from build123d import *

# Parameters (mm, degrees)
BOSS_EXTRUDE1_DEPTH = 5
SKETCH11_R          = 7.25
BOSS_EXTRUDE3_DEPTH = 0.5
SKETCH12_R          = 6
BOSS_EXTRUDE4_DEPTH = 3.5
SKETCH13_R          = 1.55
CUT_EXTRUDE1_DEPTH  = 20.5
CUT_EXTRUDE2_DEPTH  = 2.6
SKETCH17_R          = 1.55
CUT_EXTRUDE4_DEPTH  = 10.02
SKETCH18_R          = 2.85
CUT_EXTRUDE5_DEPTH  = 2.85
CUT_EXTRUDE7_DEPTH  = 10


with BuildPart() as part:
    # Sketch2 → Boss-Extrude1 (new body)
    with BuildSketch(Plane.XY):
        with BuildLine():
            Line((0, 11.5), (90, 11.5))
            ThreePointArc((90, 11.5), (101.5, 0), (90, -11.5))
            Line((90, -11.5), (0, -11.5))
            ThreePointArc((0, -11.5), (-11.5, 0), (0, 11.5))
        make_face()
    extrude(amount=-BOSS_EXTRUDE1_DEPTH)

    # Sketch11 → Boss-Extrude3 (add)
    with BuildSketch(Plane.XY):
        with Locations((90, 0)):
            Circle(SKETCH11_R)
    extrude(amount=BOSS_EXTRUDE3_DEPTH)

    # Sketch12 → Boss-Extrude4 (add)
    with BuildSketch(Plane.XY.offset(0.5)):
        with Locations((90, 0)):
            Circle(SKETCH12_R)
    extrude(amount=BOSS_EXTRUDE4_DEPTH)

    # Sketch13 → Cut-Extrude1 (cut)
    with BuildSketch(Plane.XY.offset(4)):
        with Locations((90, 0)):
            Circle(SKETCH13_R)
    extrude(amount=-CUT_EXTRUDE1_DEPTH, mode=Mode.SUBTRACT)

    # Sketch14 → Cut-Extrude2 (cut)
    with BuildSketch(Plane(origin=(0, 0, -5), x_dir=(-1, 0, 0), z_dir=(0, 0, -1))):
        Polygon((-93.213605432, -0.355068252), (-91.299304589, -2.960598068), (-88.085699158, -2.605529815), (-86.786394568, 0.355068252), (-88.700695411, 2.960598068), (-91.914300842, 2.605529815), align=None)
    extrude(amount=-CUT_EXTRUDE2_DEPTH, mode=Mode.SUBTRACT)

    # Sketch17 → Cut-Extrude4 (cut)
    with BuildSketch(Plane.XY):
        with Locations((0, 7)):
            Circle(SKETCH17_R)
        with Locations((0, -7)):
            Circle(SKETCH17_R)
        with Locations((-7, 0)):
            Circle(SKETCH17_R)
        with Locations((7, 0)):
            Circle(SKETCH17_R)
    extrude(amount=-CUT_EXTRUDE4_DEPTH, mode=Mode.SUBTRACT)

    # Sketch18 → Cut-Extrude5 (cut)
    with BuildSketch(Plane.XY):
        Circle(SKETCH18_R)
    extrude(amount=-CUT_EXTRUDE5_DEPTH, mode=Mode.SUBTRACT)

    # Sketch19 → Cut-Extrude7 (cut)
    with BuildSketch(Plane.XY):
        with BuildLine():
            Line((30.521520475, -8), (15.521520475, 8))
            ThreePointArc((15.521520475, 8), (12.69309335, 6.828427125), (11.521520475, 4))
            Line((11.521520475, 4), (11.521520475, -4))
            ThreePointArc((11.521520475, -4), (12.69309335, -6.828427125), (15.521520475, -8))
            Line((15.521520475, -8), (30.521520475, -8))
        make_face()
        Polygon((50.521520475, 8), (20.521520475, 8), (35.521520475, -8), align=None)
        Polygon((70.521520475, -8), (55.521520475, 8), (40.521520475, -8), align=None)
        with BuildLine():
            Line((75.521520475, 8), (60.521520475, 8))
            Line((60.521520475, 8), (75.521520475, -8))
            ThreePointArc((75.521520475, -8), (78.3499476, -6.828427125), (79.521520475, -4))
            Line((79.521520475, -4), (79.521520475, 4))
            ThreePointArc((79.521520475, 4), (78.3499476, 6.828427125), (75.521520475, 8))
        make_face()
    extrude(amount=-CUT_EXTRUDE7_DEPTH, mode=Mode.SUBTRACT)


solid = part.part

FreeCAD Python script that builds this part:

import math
import FreeCAD as App
import Part
import Sketcher
from FreeCAD import Vector
Q = App.Units.Quantity


def add_polygon(sketch, points):
    """Adds a closed chain of lines whose ends are joined by coincident constraints."""
    first, n = sketch.GeometryCount, len(points)
    for a, b in zip(points, points[1:] + points[:1]):
        sketch.addGeometry(Part.LineSegment(App.Vector(*a, 0), App.Vector(*b, 0)), False)
    for i in range(n):
        sketch.addConstraint(Sketcher.Constraint("Coincident", first + i, 2, first + (i + 1) % n, 1))

doc = App.newDocument("Part")
body = doc.addObject("PartDesign::Body", "Body")

# Sketch on XY plane
sketch1 = body.newObject("Sketcher::SketchObject", "Sketch")
sketch1.AttachmentSupport = (doc.getObject("XY_Plane"), [""])
sketch1.MapMode = "FlatFace"
sketch1.addGeometry([
    Part.LineSegment(Vector(90, 12, 0), Vector(0, 12, 0)),
    Part.ArcOfCircle(Part.Circle(Vector(0, 0, 0), Vector(0, 0, 1), 12), math.radians(90), math.radians(270)),
    Part.LineSegment(Vector(0, -12, 0), Vector(90, -12, 0)),
    Part.ArcOfCircle(Part.Circle(Vector(90, 0, 0), Vector(0, 0, 1), 12), math.radians(-90), math.radians(90)),
], False)
sketch1.addConstraint([
    Sketcher.Constraint("Tangent", 0, 2, 1, 1),
    Sketcher.Constraint("Tangent", 1, 2, 2, 1),
    Sketcher.Constraint("Tangent", 2, 2, 3, 1),
    Sketcher.Constraint("Tangent", 3, 2, 0, 1),
    Sketcher.Constraint("Horizontal", 0),
    Sketcher.Constraint("Horizontal", 2),
    Sketcher.Constraint("Coincident", 1, 3, -1, 1),
    Sketcher.Constraint("Radius", 1, Q("11.5 mm")),
    Sketcher.Constraint("DistanceX", 0, 2, 0, 1, Q("90 mm")),
])
pad1 = body.newObject("PartDesign::Pad", "Pad")
pad1.Profile = sketch1
pad1.Length = 5
pad1.Reversed = True

# Sketch on XY plane
sketch2 = body.newObject("Sketcher::SketchObject", "Sketch001")
sketch2.AttachmentSupport = (doc.getObject("XY_Plane"), [""])
sketch2.MapMode = "FlatFace"
sketch2.addGeometry(Part.Circle(Vector(90, 0, 0), Vector(0, 0, 1), 7), False)
sketch2.addConstraint([
    Sketcher.Constraint("PointOnObject", 0, 3, -1),
    Sketcher.Constraint("Diameter", 0, Q("14.5 mm")),
    Sketcher.Constraint("DistanceX", -1, 1, 0, 3, Q("90 mm")),
])
pad2 = body.newObject("PartDesign::Pad", "Pad001")
pad2.Profile = sketch2
pad2.Length = 0.5

# Sketch on XY plane
sketch3 = body.newObject("Sketcher::SketchObject", "Sketch002")
sketch3.AttachmentSupport = (doc.getObject("XY_Plane"), [""])
sketch3.MapMode = "FlatFace"
sketch3.AttachmentOffset = App.Placement(Vector(0, 0, 0.5), App.Rotation())
sketch3.addGeometry(Part.Circle(Vector(90, 0, 0), Vector(0, 0, 1), 6), False)
sketch3.addConstraint([
    Sketcher.Constraint("PointOnObject", 0, 3, -1),
    Sketcher.Constraint("Diameter", 0, Q("12 mm")),
    Sketcher.Constraint("DistanceX", -1, 1, 0, 3, Q("90 mm")),
])
pad3 = body.newObject("PartDesign::Pad", "Pad002")
pad3.Profile = sketch3
pad3.Length = 3.5

# Sketch on XY plane
sketch4 = body.newObject("Sketcher::SketchObject", "Sketch003")
sketch4.AttachmentSupport = (doc.getObject("XY_Plane"), [""])
sketch4.MapMode = "FlatFace"
sketch4.AttachmentOffset = App.Placement(Vector(0, 0, 4), App.Rotation())
sketch4.addGeometry(Part.Circle(Vector(90, 0, 0), Vector(0, 0, 1), 1.6), False)
sketch4.addConstraint([
    Sketcher.Constraint("PointOnObject", 0, 3, -1),
    Sketcher.Constraint("Diameter", 0, Q("3.1 mm")),
    Sketcher.Constraint("DistanceX", -1, 1, 0, 3, Q("90 mm")),
])
pocket1 = body.newObject("PartDesign::Pocket", "Pocket")
pocket1.Profile = sketch4
pocket1.Length = 20.5

# Sketch on XY plane
sketch5 = body.newObject("Sketcher::SketchObject", "Sketch004")
sketch5.AttachmentSupport = (doc.getObject("XY_Plane"), [""])
sketch5.MapMode = "FlatFace"
sketch5.AttachmentOffset = App.Placement(Vector(0, 0, -5), App.Rotation())
add_polygon(sketch5, [(93.2, -0.4), (91.3, -3), (88.1, -2.6), (86.8, 0.4), (88.7, 3), (91.9, 2.6)])  # lines 0-5
sketch5.addConstraint([
    Sketcher.Constraint("Parallel", 0, 3),
    Sketcher.Constraint("Parallel", 1, 4),
    Sketcher.Constraint("Parallel", 2, 5),
    Sketcher.Constraint("Equal", 0, 1),
    Sketcher.Constraint("Equal", 1, 2),
    Sketcher.Constraint("Equal", 2, 3),
    Sketcher.Constraint("DistanceY", 0, 2, -1, 1, Q("2.960598 mm")),
    Sketcher.Constraint("DistanceX", -1, 1, 1, 2, Q("88.085699 mm")),
    Sketcher.Constraint("DistanceY", -1, 1, 3, 2, Q("2.960598 mm")),
    Sketcher.Constraint("DistanceX", -1, 1, 4, 2, Q("91.914301 mm")),
    Sketcher.Constraint("DistanceY", 1, 2, 2, 2, Q("2.960598 mm")),
    Sketcher.Constraint("DistanceX", 2, 2, 3, 2, Q("1.914301 mm")),
])
pocket2 = body.newObject("PartDesign::Pocket", "Pocket001")
pocket2.Profile = sketch5
pocket2.Length = 2.6
pocket2.Reversed = True

# Sketch on XY plane
sketch6 = body.newObject("Sketcher::SketchObject", "Sketch005")
sketch6.AttachmentSupport = (doc.getObject("XY_Plane"), [""])
sketch6.MapMode = "FlatFace"
sketch6.addGeometry([
    Part.Circle(Vector(0, 7, 0), Vector(0, 0, 1), 1.6),
    Part.Circle(Vector(0, -7, 0), Vector(0, 0, 1), 1.6),
    Part.Circle(Vector(-7, 0, 0), Vector(0, 0, 1), 1.6),
    Part.Circle(Vector(7, 0, 0), Vector(0, 0, 1), 1.6),
], False)
sketch6.addConstraint([
    Sketcher.Constraint("Equal", 0, 1),
    Sketcher.Constraint("Equal", 1, 2),
    Sketcher.Constraint("Equal", 2, 3),
    Sketcher.Constraint("Symmetric", 0, 3, 1, 3, -1, 1),
    Sketcher.Constraint("Symmetric", 2, 3, 3, 3, -1, 1),
    Sketcher.Constraint("PointOnObject", 0, 3, -2),
    Sketcher.Constraint("PointOnObject", 2, 3, -1),
    Sketcher.Constraint("Diameter", 0, Q("3.1 mm")),
    Sketcher.Constraint("DistanceY", -1, 1, 0, 3, Q("7 mm")),
    Sketcher.Constraint("DistanceX", 2, 3, -1, 1, Q("7 mm")),
])
pocket3 = body.newObject("PartDesign::Pocket", "Pocket002")
pocket3.Profile = sketch6
pocket3.Length = 10.02

# Sketch on XY plane
sketch7 = body.newObject("Sketcher::SketchObject", "Sketch006")
sketch7.AttachmentSupport = (doc.getObject("XY_Plane"), [""])
sketch7.MapMode = "FlatFace"
sketch7.addGeometry(Part.Circle(Vector(0, 0, 0), Vector(0, 0, 1), 2.9), False)
sketch7.addConstraint([
    Sketcher.Constraint("Coincident", 0, 3, -1, 1),
    Sketcher.Constraint("Diameter", 0, Q("5.7 mm")),
])
pocket4 = body.newObject("PartDesign::Pocket", "Pocket003")
pocket4.Profile = sketch7
pocket4.Length = 2.85

# Sketch on XY plane
sketch8 = body.newObject("Sketcher::SketchObject", "Sketch007")
sketch8.AttachmentSupport = (doc.getObject("XY_Plane"), [""])
sketch8.MapMode = "FlatFace"
sketch8.addGeometry(Part.LineSegment(Vector(30.5, -8, 0), Vector(15.5, 8, 0)), False)  # 0
sketch8.addGeometry(Part.ArcOfCircle(Part.Circle(Vector(15.5, 4, 0), Vector(0, 0, 1), 4), math.radians(90), math.radians(180)), False)  # 1
sketch8.addGeometry(Part.LineSegment(Vector(11.5, 4, 0), Vector(11.5, -4, 0)), False)  # 2
sketch8.addGeometry(Part.ArcOfCircle(Part.Circle(Vector(15.5, -4, 0), Vector(0, 0, 1), 4), math.radians(180), math.radians(270)), False)  # 3
sketch8.addGeometry(Part.LineSegment(Vector(15.5, -8, 0), Vector(30.5, -8, 0)), False)  # 4
add_polygon(sketch8, [(50.5, 8), (20.5, 8), (35.5, -8)])  # lines 5-7
add_polygon(sketch8, [(70.5, -8), (55.5, 8), (40.5, -8)])  # lines 8-10
sketch8.addGeometry(Part.LineSegment(Vector(75.5, 8, 0), Vector(60.5, 8, 0)), False)  # 11
sketch8.addGeometry(Part.LineSegment(Vector(60.5, 8, 0), Vector(75.5, -8, 0)), False)  # 12
sketch8.addGeometry(Part.ArcOfCircle(Part.Circle(Vector(75.5, -4, 0), Vector(0, 0, 1), 4), math.radians(-90), math.radians(0)), False)  # 13
sketch8.addGeometry(Part.LineSegment(Vector(79.5, -4, 0), Vector(79.5, 4, 0)), False)  # 14
sketch8.addGeometry(Part.ArcOfCircle(Part.Circle(Vector(75.5, 4, 0), Vector(0, 0, 1), 4), math.radians(0), math.radians(90)), False)  # 15
sketch8.addConstraint([
    Sketcher.Constraint("Coincident", 0, 2, 1, 1),
    Sketcher.Constraint("Tangent", 1, 2, 2, 1),
    Sketcher.Constraint("Tangent", 2, 2, 3, 1),
    Sketcher.Constraint("Tangent", 3, 2, 4, 1),
    Sketcher.Constraint("Coincident", 4, 2, 0, 1),
    Sketcher.Constraint("Coincident", 11, 2, 12, 1),
    Sketcher.Constraint("Coincident", 12, 2, 13, 1),
    Sketcher.Constraint("Tangent", 13, 2, 14, 1),
    Sketcher.Constraint("Tangent", 14, 2, 15, 1),
    Sketcher.Constraint("Tangent", 15, 2, 11, 1),
    Sketcher.Constraint("Vertical", 2),
    Sketcher.Constraint("Horizontal", 4),
    Sketcher.Constraint("Horizontal", 5),
    Sketcher.Constraint("Horizontal", 10),
    Sketcher.Constraint("Horizontal", 11),
    Sketcher.Constraint("Vertical", 14),
    Sketcher.Constraint("Equal", 1, 3),
    Sketcher.Constraint("Equal", 3, 13),
    Sketcher.Constraint("Equal", 13, 15),
    Sketcher.Constraint("Symmetric", 0, 2, 3, 2, -1),
    Sketcher.Constraint("Symmetric", 12, 2, 15, 2, -1),
    Sketcher.Constraint("Parallel", 0, 6),
    Sketcher.Constraint("Parallel", 6, 8),
    Sketcher.Constraint("Parallel", 7, 9),
    Sketcher.Constraint("Parallel", 8, 12),
    Sketcher.Constraint("Horizontal", 3, 3, 13, 3),
    Sketcher.Constraint("Horizontal", 0, 2, 5, 2),
    Sketcher.Constraint("Horizontal", 4, 2, 6, 2),
    Sketcher.Constraint("Horizontal", 7, 2, 8, 2),
    Sketcher.Constraint("Horizontal", 6, 2, 9, 2),
    Sketcher.Constraint("Equal", 6, 7),
    Sketcher.Constraint("Radius", 1, Q("4 mm")),
    Sketcher.Constraint("DistanceX", 4, 1, 4, 2, Q("15 mm")),
    Sketcher.Constraint("DistanceY", 2, 2, 2, 1, Q("8 mm")),
    Sketcher.Constraint("DistanceX", 3, 3, 13, 3, Q("60 mm")),
    Sketcher.Constraint("DistanceX", 0, 2, 5, 2, Q("5 mm")),
    Sketcher.Constraint("DistanceX", 7, 2, 8, 2, Q("5 mm")),
    Sketcher.Constraint("DistanceX", -1, 1, 1, 3, Q("15.52152 mm")),
])
pocket5 = body.newObject("PartDesign::Pocket", "Pocket004")
pocket5.Profile = sketch8
pocket5.Length = 10

doc.recompute()
